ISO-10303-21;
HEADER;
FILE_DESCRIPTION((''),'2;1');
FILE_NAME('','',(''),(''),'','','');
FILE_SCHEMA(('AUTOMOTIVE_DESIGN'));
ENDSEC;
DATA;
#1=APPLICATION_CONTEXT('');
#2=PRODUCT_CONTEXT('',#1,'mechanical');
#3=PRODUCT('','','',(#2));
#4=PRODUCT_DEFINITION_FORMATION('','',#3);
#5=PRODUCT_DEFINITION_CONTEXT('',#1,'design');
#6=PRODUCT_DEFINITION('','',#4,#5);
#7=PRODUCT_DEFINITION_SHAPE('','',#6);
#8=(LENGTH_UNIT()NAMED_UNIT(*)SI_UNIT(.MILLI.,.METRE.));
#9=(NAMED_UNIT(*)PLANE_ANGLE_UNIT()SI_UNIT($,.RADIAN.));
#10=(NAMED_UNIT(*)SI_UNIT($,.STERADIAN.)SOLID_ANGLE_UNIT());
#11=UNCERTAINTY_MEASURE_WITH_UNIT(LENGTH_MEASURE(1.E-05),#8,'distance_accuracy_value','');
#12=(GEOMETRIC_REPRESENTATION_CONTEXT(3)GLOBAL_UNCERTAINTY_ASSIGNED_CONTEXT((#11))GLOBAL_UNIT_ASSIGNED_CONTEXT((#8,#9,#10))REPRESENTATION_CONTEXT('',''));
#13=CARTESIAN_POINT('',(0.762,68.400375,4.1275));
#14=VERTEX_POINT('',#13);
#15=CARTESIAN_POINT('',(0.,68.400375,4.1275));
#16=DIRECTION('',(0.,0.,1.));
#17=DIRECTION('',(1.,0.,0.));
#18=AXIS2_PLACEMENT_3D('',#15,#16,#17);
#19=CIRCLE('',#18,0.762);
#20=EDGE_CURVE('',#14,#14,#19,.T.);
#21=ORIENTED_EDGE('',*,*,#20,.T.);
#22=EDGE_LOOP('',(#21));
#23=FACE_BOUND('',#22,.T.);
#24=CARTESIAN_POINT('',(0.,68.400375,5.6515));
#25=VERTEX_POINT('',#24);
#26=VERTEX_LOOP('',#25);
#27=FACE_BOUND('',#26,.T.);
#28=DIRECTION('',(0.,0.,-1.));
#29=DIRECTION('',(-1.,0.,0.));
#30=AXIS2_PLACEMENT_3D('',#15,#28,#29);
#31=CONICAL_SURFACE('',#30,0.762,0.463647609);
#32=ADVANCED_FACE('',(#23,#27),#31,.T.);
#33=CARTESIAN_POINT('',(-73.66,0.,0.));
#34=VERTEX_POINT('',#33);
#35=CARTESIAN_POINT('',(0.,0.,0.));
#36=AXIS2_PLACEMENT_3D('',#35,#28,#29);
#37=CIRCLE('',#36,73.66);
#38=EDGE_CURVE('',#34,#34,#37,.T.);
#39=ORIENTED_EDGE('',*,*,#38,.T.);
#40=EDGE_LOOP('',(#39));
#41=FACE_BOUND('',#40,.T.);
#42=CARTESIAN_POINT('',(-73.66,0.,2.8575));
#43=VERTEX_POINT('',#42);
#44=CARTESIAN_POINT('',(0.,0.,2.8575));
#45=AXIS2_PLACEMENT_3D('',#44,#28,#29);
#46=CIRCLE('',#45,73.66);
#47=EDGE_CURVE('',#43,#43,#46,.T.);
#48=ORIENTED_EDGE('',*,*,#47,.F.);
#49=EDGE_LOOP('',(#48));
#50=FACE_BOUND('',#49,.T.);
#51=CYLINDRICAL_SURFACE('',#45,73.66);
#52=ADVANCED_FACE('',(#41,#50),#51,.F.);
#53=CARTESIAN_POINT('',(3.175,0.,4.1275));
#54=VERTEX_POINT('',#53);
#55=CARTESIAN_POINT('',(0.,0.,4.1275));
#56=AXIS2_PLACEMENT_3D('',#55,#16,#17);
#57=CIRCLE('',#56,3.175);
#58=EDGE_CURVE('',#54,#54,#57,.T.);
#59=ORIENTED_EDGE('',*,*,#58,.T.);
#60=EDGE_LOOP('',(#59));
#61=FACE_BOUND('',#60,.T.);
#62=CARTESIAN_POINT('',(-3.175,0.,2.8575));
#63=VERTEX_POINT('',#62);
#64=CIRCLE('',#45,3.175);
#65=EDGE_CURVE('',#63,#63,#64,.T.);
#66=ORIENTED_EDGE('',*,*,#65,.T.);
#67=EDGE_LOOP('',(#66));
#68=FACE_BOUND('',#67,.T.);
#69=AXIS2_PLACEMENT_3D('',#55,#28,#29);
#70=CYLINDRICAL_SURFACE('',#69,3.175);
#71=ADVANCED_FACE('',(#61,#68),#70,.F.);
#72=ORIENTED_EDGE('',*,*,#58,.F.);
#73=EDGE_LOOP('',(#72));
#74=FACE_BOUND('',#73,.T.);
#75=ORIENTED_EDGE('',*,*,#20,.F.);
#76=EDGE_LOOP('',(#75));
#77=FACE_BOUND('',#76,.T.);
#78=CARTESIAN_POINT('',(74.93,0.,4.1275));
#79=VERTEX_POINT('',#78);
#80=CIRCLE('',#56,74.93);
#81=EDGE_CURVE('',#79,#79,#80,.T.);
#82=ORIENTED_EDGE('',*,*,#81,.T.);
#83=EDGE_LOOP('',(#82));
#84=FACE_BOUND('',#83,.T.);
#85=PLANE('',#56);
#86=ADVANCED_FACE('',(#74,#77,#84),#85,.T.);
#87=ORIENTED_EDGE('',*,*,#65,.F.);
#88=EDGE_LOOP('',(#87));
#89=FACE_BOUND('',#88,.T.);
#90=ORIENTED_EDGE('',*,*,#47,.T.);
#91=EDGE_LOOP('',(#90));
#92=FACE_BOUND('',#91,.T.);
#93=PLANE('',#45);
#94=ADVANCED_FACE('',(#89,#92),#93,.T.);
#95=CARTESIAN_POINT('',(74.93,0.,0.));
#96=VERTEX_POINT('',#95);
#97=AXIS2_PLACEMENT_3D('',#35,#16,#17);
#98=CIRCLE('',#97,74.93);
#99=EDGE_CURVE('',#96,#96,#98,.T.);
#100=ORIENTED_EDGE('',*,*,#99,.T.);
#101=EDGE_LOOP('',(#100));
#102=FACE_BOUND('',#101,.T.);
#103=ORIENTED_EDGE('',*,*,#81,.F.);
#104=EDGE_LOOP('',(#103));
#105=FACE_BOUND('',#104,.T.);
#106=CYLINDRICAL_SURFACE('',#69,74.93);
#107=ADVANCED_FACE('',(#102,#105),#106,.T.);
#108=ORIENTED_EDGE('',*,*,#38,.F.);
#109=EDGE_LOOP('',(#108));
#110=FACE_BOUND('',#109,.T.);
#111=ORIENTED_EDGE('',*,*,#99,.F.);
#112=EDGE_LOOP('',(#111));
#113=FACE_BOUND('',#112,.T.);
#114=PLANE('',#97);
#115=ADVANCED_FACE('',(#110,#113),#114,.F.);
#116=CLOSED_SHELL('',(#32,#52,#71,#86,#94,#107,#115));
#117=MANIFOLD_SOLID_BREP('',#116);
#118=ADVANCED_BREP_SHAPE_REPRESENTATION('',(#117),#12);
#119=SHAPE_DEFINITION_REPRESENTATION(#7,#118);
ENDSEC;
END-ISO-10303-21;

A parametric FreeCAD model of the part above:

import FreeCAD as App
import Part
import Sketcher
Q = App.Units.Quantity


def add_polygon(sketch, points):
    """Adds a closed chain of lines whose ends are joined by coincident constraints."""
    first, n = sketch.GeometryCount, len(points)
    for a, b in zip(points, points[1:] + points[:1]):
        sketch.addGeometry(Part.LineSegment(App.Vector(*a, 0), App.Vector(*b, 0)), False)
    for i in range(n):
        sketch.addConstraint(Sketcher.Constraint("Coincident", first + i, 2, first + (i + 1) % n, 1))

doc = App.newDocument("Part")
body = doc.addObject("PartDesign::Body", "Body")

# Sketch on XY plane
sketch1 = body.newObject("Sketcher::SketchObject", "Sketch")
sketch1.AttachmentSupport = (doc.getObject("XY_Plane"), [""])
sketch1.MapMode = "FlatFace"
sketch1.addGeometry(Part.Circle(App.Vector(0, 0, 0), App.Vector(0, 0, 1), 74.93), False)
sketch1.addGeometry(Part.Circle(App.Vector(0, 0, 0), App.Vector(0, 0, 1), 3.175), False)
sketch1.addConstraint(Sketcher.Constraint("Coincident", 0, 3, -1, 1))
sketch1.addConstraint(Sketcher.Constraint("Coincident", 1, 3, -1, 1))
sketch1.addConstraint(Sketcher.Constraint("Diameter", 0, Q("5.9 in")))
sketch1.addConstraint(Sketcher.Constraint("Diameter", 1, Q("0.25 in")))
pad1 = body.newObject("PartDesign::Pad", "Pad")
pad1.Profile = sketch1
pad1.Length = Q("0.1625 in")

# Sketch on XY plane
sketch2 = body.newObject("Sketcher::SketchObject", "Sketch001")
sketch2.AttachmentSupport = (doc.getObject("XY_Plane"), [""])
sketch2.MapMode = "FlatFace"
sketch2.addGeometry(Part.Circle(App.Vector(0, 0, 0), App.Vector(0, 0, 1), 73.66), False)
sketch2.addConstraint(Sketcher.Constraint("Coincident", 0, 3, -1, 1))
sketch2.addConstraint(Sketcher.Constraint("Diameter", 0, Q("5.8 in")))
pocket1 = body.newObject("PartDesign::Pocket", "Pocket")
pocket1.Profile = sketch2
pocket1.Length = Q("0.1125 in")
pocket1.Reversed = True

# Sketch on YZ plane
sketch3 = body.newObject("Sketcher::SketchObject", "Sketch002")
sketch3.AttachmentSupport = (doc.getObject("YZ_Plane"), [""])
sketch3.MapMode = "FlatFace"
add_polygon(sketch3, [(69.162375, 4.1275), (68.400375, 5.6515), (68.400375, 4.1275)])  # lines 0-2
sketch3.addGeometry(Part.LineSegment(App.Vector(68.400375, 5.6515, 0), App.Vector(68.400375, 4.1275, 0)), True)  # axis
sketch3.addConstraint(Sketcher.Constraint("Vertical", 1))
sketch3.addConstraint(Sketcher.Constraint("Horizontal", 2))
sketch3.addConstraint(Sketcher.Constraint("Vertical", 3))
sketch3.addConstraint(Sketcher.Constraint("Coincident", 3, 1, 0, 2))
sketch3.addConstraint(Sketcher.Constraint("Horizontal", 2, 2, 3, 2))
sketch3.addConstraint(Sketcher.Constraint("DistanceX", 2, 1, 2, 2, Q("0.03 in")))
sketch3.addConstraint(Sketcher.Constraint("DistanceY", 1, 2, 1, 1, Q("0.06 in")))
sketch3.addConstraint(Sketcher.Constraint("DistanceY", -1, 1, 0, 2, Q("0.2225 in")))
sketch3.addConstraint(Sketcher.Constraint("DistanceX", -1, 1, 0, 2, Q("68.400375 mm")))
revolution = body.newObject("PartDesign::Revolution", "Revolution")
revolution.Profile = sketch3
revolution.ReferenceAxis = (sketch3, ["Axis0"])
revolution.Angle = 360

doc.recompute()
